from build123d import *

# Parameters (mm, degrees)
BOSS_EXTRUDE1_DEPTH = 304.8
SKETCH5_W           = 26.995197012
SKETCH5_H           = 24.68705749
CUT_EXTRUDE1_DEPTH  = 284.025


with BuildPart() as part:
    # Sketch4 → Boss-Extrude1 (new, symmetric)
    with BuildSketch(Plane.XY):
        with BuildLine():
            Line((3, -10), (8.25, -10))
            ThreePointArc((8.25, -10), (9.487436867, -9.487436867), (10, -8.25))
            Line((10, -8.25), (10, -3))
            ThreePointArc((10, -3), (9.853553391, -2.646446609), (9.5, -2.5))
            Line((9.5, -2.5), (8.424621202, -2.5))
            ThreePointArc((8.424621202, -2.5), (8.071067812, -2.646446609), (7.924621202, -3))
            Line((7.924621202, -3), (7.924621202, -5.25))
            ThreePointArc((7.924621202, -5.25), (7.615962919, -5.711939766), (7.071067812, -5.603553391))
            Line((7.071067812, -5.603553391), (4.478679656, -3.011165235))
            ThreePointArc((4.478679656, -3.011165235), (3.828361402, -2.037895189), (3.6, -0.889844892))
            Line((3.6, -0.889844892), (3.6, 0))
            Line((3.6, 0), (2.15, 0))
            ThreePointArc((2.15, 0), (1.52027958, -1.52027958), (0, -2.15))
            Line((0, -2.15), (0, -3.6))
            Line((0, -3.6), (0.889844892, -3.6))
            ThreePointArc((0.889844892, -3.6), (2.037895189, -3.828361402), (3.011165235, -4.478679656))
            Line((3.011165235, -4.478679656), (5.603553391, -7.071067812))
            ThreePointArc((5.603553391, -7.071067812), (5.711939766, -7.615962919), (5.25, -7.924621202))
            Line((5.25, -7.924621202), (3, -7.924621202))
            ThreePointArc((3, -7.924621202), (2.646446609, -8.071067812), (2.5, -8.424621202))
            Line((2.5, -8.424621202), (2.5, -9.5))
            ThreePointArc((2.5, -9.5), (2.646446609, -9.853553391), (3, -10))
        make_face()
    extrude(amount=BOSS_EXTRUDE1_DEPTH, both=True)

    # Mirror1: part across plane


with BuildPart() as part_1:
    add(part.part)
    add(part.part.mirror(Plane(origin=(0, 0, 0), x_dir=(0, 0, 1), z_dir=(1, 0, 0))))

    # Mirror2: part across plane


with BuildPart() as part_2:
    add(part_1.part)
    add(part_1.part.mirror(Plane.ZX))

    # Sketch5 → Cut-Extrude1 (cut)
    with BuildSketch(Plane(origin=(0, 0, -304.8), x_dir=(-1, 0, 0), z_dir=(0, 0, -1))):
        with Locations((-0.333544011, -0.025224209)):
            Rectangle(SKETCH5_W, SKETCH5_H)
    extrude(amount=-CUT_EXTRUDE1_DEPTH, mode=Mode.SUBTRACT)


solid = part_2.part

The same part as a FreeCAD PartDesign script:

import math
import FreeCAD as App
import Part
import Sketcher
from FreeCAD import Vector

doc = App.newDocument("Part")
body = doc.addObject("PartDesign::Body", "Body")

# Sketch on XY plane
sketch1 = body.newObject("Sketcher::SketchObject", "Sketch")
sketch1.AttachmentSupport = (doc.getObject("XY_Plane"), [""])
sketch1.MapMode = "FlatFace"
sketch1.addGeometry([
    Part.LineSegment(Vector(3, -10, 0), Vector(8.25, -10, 0)),  # 0
    Part.ArcOfCircle(Part.Circle(Vector(8.25, -8.25, 0), Vector(0, 0, 1), 1.75), math.radians(-90), math.radians(0)),  # 1
    Part.LineSegment(Vector(10, -8.25, 0), Vector(10, -3, 0)),  # 2
    Part.ArcOfCircle(Part.Circle(Vector(9.5, -3, 0), Vector(0, 0, 1), 0.5), math.radians(0), math.radians(90)),  # 3
    Part.LineSegment(Vector(9.5, -2.5, 0), Vector(8.424621, -2.5, 0)),  # 4
    Part.ArcOfCircle(Part.Circle(Vector(8.424621, -3, 0), Vector(0, 0, 1), 0.5), math.radians(90), math.radians(180)),  # 5
    Part.LineSegment(Vector(7.924621, -3, 0), Vector(7.924621, -5.25, 0)),  # 6
    Part.ArcOfCircle(Part.Circle(Vector(7.424621, -5.25, 0), Vector(0, 0, 1), 0.5), math.radians(-135), math.radians(0)),  # 7
    Part.LineSegment(Vector(7.071068, -5.603553, 0), Vector(4.47868, -3.011165, 0)),  # 8
    Part.ArcOfCircle(Part.Circle(Vector(6.6, -0.889845, 0), Vector(0, 0, 1), 3), math.radians(180), math.radians(225)),  # 9
    Part.LineSegment(Vector(3.6, -0.889845, 0), Vector(3.6, 0, 0)),  # 10
    Part.LineSegment(Vector(3.6, 0, 0), Vector(2.15, 0, 0)),  # 11
    Part.ArcOfCircle(Part.Circle(Vector(0, 0, 0), Vector(0, 0, 1), 2.15), math.radians(-90), math.radians(0)),  # 12
    Part.LineSegment(Vector(0, -2.15, 0), Vector(0, -3.6, 0)),  # 13
    Part.LineSegment(Vector(0, -3.6, 0), Vector(0.889845, -3.6, 0)),  # 14
    Part.ArcOfCircle(Part.Circle(Vector(0.889845, -6.6, 0), Vector(0, 0, 1), 3), math.radians(45), math.radians(90)),  # 15
    Part.LineSegment(Vector(3.011165, -4.47868, 0), Vector(5.603553, -7.071068, 0)),  # 16
    Part.ArcOfCircle(Part.Circle(Vector(5.25, -7.424621, 0), Vector(0, 0, 1), 0.5), math.radians(-90), math.radians(45)),  # 17
    Part.LineSegment(Vector(5.25, -7.924621, 0), Vector(3, -7.924621, 0)),  # 18
    Part.ArcOfCircle(Part.Circle(Vector(3, -8.424621, 0), Vector(0, 0, 1), 0.5), math.radians(90), math.radians(180)),  # 19
    Part.LineSegment(Vector(2.5, -8.424621, 0), Vector(2.5, -9.5, 0)),  # 20
    Part.ArcOfCircle(Part.Circle(Vector(3, -9.5, 0), Vector(0, 0, 1), 0.5), math.radians(180), math.radians(270)),  # 21
], False)
sketch1.addConstraint([
    Sketcher.Constraint("Tangent", 0, 2, 1, 1),
    Sketcher.Constraint("Tangent", 1, 2, 2, 1),
    Sketcher.Constraint("Tangent", 2, 2, 3, 1),
    Sketcher.Constraint("Tangent", 3, 2, 4, 1),
    Sketcher.Constraint("Tangent", 4, 2, 5, 1),
    Sketcher.Constraint("Tangent", 5, 2, 6, 1),
    Sketcher.Constraint("Tangent", 6, 2, 7, 2),
    Sketcher.Constraint("Tangent", 7, 1, 8, 1),
    Sketcher.Constraint("Tangent", 8, 2, 9, 2),
    Sketcher.Constraint("Tangent", 9, 1, 10, 1),
    Sketcher.Constraint("Coincident", 10, 2, 11, 1),
    Sketcher.Constraint("Coincident", 11, 2, 12, 2),
    Sketcher.Constraint("Coincident", 12, 1, 13, 1),
    Sketcher.Constraint("Coincident", 13, 2, 14, 1),
    Sketcher.Constraint("Tangent", 14, 2, 15, 2),
    Sketcher.Constraint("Tangent", 15, 1, 16, 1),
    Sketcher.Constraint("Tangent", 16, 2, 17, 2),
    Sketcher.Constraint("Tangent", 17, 1, 18, 1),
    Sketcher.Constraint("Tangent", 18, 2, 19, 1),
    Sketcher.Constraint("Tangent", 19, 2, 20, 1),
    Sketcher.Constraint("Tangent", 20, 2, 21, 1),
    Sketcher.Constraint("Tangent", 21, 2, 0, 1),
    Sketcher.Constraint("Horizontal", 0),
    Sketcher.Constraint("Vertical", 2),
    Sketcher.Constraint("Horizontal", 4),
    Sketcher.Constraint("Vertical", 6),
    Sketcher.Constraint("Vertical", 10),
    Sketcher.Constraint("Horizontal", 11),
    Sketcher.Constraint("Vertical", 13),
    Sketcher.Constraint("Horizontal", 14),
    Sketcher.Constraint("Horizontal", 18),
    Sketcher.Constraint("Vertical", 20),
    Sketcher.Constraint("Coincident", 12, 3, -1, 1),
    Sketcher.Constraint("Equal", 3, 5),
    Sketcher.Constraint("Equal", 5, 7),
    Sketcher.Constraint("Equal", 9, 15),
    Sketcher.Constraint("Equal", 7, 17),
    Sketcher.Constraint("Equal", 17, 19),
    Sketcher.Constraint("Equal", 19, 21),
    Sketcher.Constraint("PointOnObject", 10, 2, -1),
    Sketcher.Constraint("PointOnObject", 12, 1, -2),
    Sketcher.Constraint("Parallel", 8, 16),
    Sketcher.Constraint("Equal", 0, 2),
    Sketcher.Constraint("Equal", 18, 6),
    Sketcher.Constraint("Equal", 14, 10),
    Sketcher.Constraint("Equal", 11, 13),
    Sketcher.Constraint("Equal", 4, 20),
    Sketcher.Constraint("Equal", 8, 16),
    Sketcher.Constraint("Radius", 9, 3.0),
    Sketcher.Constraint("Radius", 3, 0.5),
    Sketcher.Constraint("Radius", 1, 1.75),
    Sketcher.Constraint("Radius", 12, 2.15),
    Sketcher.Constraint("DistanceY", 3, 3, -1, 1, 3.0),
    Sketcher.Constraint("DistanceY", 0, 2, -1, 1, 10.0),
    Sketcher.Constraint("DistanceY", 1, 3, 7, 3, 3.0),
    Sketcher.Constraint("DistanceX", 11, 2, 11, 1, 1.45),
    Sketcher.Constraint("DistanceX", 4, 2, 4, 1, 1.075379),
])
pad1 = body.newObject("PartDesign::Pad", "Pad")
pad1.Profile = sketch1
pad1.Length = 609.6
pad1.Midplane = True
body2 = doc.addObject("PartDesign::Body", "Body001")
doc.recompute()

body2.BaseFeature = body
doc.recompute()

mirroring = doc.addObject("Part::Mirroring", "Mirroring")
mirroring.Source = body
mirroring.Base = Vector(0, 0, 0)
mirroring.Normal = Vector(1, 0, 0)
body3 = doc.addObject("PartDesign::Body", "Body002")
body3.BaseFeature = mirroring
boolean = body2.newObject("PartDesign::Boolean", "Boolean")
boolean.Type = "Fuse"
boolean.addObjects([body3])
doc.recompute()
body4 = doc.addObject("PartDesign::Body", "Body003")
doc.recompute()

body4.BaseFeature = body2
doc.recompute()

mirroring2 = doc.addObject("Part::Mirroring", "Mirroring001")
mirroring2.Source = body2
mirroring2.Base = Vector(0, 0, 0)
mirroring2.Normal = Vector(0, 1, 0)
body5 = doc.addObject("PartDesign::Body", "Body004")
body5.BaseFeature = mirroring2
boolean2 = body4.newObject("PartDesign::Boolean", "Boolean001")
boolean2.Type = "Fuse"
boolean2.addObjects([body5])
doc.recompute()

# Sketch on XY plane
sketch2 = body4.newObject("Sketcher::SketchObject", "Sketch001")
sketch2.AttachmentSupport = (doc.getObject("XY_Plane003"), [""])
sketch2.MapMode = "FlatFace"
sketch2.AttachmentOffset = App.Placement(Vector(0, 0, -304.8), App.Rotation())
sketch2.addGeometry([
    Part.LineSegment(Vector(13.831143, 12.318305, 0), Vector(13.831143, -12.368753, 0)),
    Part.LineSegment(Vector(13.831143, -12.368753, 0), Vector(-13.164054, -12.368753, 0)),
    Part.LineSegment(Vector(-13.164054, -12.368753, 0), Vector(-13.164054, 12.318305, 0)),
    Part.LineSegment(Vector(-13.164054, 12.318305, 0), Vector(13.831143, 12.318305, 0)),
], False)
sketch2.addConstraint([
    Sketcher.Constraint("Coincident", 0, 2, 1, 1),
    Sketcher.Constraint("Coincident", 1, 2, 2, 1),
    Sketcher.Constraint("Coincident", 2, 2, 3, 1),
    Sketcher.Constraint("Coincident", 3, 2, 0, 1),
    Sketcher.Constraint("Vertical", 0),
    Sketcher.Constraint("Horizontal", 1),
    Sketcher.Constraint("Vertical", 2),
    Sketcher.Constraint("Horizontal", 3),
    Sketcher.Constraint("DistanceX", 1, 2, 1, 1, 26.995197),
    Sketcher.Constraint("DistanceY", 0, 2, 0, 1, 24.687057),
    Sketcher.Constraint("DistanceX", -1, 1, 0, 2, 13.831143),
    Sketcher.Constraint("DistanceY", 0, 2, -1, 1, 12.368753),
])
pocket1 = body4.newObject("PartDesign::Pocket", "Pocket")
pocket1.Profile = sketch2
pocket1.Length = 284.025
pocket1.Reversed = True
mirroring.Visibility = False
mirroring2.Visibility = False

doc.recompute()
